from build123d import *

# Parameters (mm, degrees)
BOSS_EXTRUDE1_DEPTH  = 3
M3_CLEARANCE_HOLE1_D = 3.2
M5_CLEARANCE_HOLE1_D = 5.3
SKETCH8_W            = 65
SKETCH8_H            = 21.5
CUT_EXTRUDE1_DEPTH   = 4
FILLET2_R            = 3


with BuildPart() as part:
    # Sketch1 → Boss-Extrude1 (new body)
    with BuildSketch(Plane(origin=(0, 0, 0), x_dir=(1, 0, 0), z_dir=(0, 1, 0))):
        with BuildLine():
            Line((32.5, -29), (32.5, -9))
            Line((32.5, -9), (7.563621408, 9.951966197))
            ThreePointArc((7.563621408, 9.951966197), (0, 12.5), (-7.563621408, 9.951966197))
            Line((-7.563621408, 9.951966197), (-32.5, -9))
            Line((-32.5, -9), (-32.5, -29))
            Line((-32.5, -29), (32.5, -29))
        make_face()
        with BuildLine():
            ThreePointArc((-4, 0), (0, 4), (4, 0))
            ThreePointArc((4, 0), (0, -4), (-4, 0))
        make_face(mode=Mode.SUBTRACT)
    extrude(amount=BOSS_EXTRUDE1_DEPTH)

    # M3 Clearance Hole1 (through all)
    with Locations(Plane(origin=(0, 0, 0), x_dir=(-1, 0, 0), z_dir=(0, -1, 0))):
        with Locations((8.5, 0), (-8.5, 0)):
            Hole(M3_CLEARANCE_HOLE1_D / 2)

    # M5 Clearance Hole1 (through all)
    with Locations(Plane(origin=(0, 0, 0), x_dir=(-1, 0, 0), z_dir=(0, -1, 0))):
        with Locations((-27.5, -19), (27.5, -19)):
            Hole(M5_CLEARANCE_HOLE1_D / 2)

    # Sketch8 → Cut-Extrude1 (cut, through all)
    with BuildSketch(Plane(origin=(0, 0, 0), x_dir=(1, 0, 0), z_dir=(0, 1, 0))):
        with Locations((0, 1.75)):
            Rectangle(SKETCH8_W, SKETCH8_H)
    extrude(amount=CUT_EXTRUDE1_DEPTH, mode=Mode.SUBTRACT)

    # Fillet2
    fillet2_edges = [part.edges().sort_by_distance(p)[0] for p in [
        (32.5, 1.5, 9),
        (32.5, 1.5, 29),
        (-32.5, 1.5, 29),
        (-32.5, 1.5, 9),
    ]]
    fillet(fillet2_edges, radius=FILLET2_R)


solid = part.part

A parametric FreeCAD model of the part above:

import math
import FreeCAD as App
import Part
import Sketcher

V = App.Vector


def edges_at(feature, points):
    """Names of the edges that pass closest to the given points."""
    edges = feature.Shape.Edges
    near = lambda p: min(range(len(edges)), key=lambda i: edges[i].distToShape(Part.Vertex(*p))[0])
    return sorted({f"Edge{near(p) + 1}" for p in points})


def add_polygon(sketch, points):
    """Adds a closed chain of lines whose ends are joined by coincident constraints."""
    first, n = sketch.GeometryCount, len(points)
    for a, b in zip(points, points[1:] + points[:1]):
        sketch.addGeometry(Part.LineSegment(App.Vector(*a, 0), App.Vector(*b, 0)), False)
    for i in range(n):
        sketch.addConstraint(Sketcher.Constraint("Coincident", first + i, 2, first + (i + 1) % n, 1))

doc = App.newDocument("Part")
body = doc.addObject("PartDesign::Body", "Body")

# Sketch on XZ plane
sketch1 = body.newObject("Sketcher::SketchObject", "Sketch")
sketch1.AttachmentSupport = (doc.getObject("XZ_Plane"), [""])
sketch1.MapMode = "FlatFace"
sketch1.addGeometry([
    Part.LineSegment(V(32.5, 29, 0), V(32.5, 9, 0)),  # 0
    Part.LineSegment(V(32.5, 9, 0), V(7.6, -10, 0)),  # 1
    Part.ArcOfCircle(Part.Circle(V(0, 0, 0), V(0, 0, 1), 12.5), math.radians(-127), math.radians(-53)),  # 2
    Part.LineSegment(V(-7.6, -10, 0), V(-32.5, 9, 0)),  # 3
    Part.LineSegment(V(-32.5, 9, 0), V(-32.5, 29, 0)),  # 4
    Part.LineSegment(V(-32.5, 29, 0), V(32.5, 29, 0)),  # 5
    Part.Circle(V(0, 0, 0), V(0, 0, 1), 4),  # 6
], False)
sketch1.addConstraint([
    Sketcher.Constraint("Coincident", 0, 2, 1, 1),
    Sketcher.Constraint("Tangent", 1, 2, 2, 2),
    Sketcher.Constraint("Tangent", 2, 1, 3, 1),
    Sketcher.Constraint("Coincident", 3, 2, 4, 1),
    Sketcher.Constraint("Coincident", 4, 2, 5, 1),
    Sketcher.Constraint("Coincident", 5, 2, 0, 1),
    Sketcher.Constraint("Vertical", 0),
    Sketcher.Constraint("Vertical", 4),
    Sketcher.Constraint("Horizontal", 5),
    Sketcher.Constraint("Coincident", 2, 3, -1, 1),
    Sketcher.Constraint("Coincident", 6, 3, -1, 1),
    Sketcher.Constraint("Symmetric", 0, 2, 3, 2, -2),
    Sketcher.Constraint("Diameter", 6, 8.0),
    Sketcher.Constraint("Radius", 2, 12.5),
    Sketcher.Constraint("DistanceX", 5, 1, 5, 2, 65.0),
    Sketcher.Constraint("DistanceY", 0, 2, 0, 1, 20.0),
    Sketcher.Constraint("DistanceY", -1, 1, 0, 2, 9.0),
])
pad1 = body.newObject("PartDesign::Pad", "Pad")
pad1.Profile = sketch1
pad1.Length = 3
pad1.Reversed = True

# Sketch on XZ plane
sketch2 = body.newObject("Sketcher::SketchObject", "Sketch001")
sketch2.AttachmentSupport = (doc.getObject("XZ_Plane"), [""])
sketch2.MapMode = "FlatFace"
sketch2.addGeometry([
    Part.Circle(V(-8.5, 0, 0), V(0, 0, 1), 1.6),
    Part.Circle(V(8.5, 0, 0), V(0, 0, 1), 1.6),
], False)
sketch2.addConstraint([
    Sketcher.Constraint("Equal", 0, 1),
    Sketcher.Constraint("Symmetric", 0, 3, 1, 3, -1, 1),
    Sketcher.Constraint("PointOnObject", 0, 3, -1),
    Sketcher.Constraint("Diameter", 0, 3.2),
    Sketcher.Constraint("DistanceX", 0, 3, 1, 3, 17.0),
])
doc.recompute()
hole = body.newObject("PartDesign::Hole", "Hole")
hole.Profile = sketch2
hole.ThreadType = "None"
hole.Diameter = 3.2
hole.DepthType = "ThroughAll"

# Sketch on XZ plane
sketch3 = body.newObject("Sketcher::SketchObject", "Sketch002")
sketch3.AttachmentSupport = (doc.getObject("XZ_Plane"), [""])
sketch3.MapMode = "FlatFace"
sketch3.addGeometry([
    Part.Circle(V(27.5, 19, 0), V(0, 0, 1), 2.6),
    Part.Circle(V(-27.5, 19, 0), V(0, 0, 1), 2.6),
], False)
sketch3.addConstraint([
    Sketcher.Constraint("Equal", 0, 1),
    Sketcher.Constraint("Symmetric", 0, 3, 1, 3, -2),
    Sketcher.Constraint("Diameter", 0, 5.3),
    Sketcher.Constraint("DistanceY", -1, 1, 0, 3, 19.0),
    Sketcher.Constraint("DistanceX", 1, 3, 0, 3, 55.0),
])
doc.recompute()
hole2 = body.newObject("PartDesign::Hole", "Hole001")
hole2.Profile = sketch3
hole2.ThreadType = "None"
hole2.Diameter = 5.3
hole2.DepthType = "ThroughAll"

# Sketch on XZ plane
sketch4 = body.newObject("Sketcher::SketchObject", "Sketch003")
sketch4.AttachmentSupport = (doc.getObject("XZ_Plane"), [""])
sketch4.MapMode = "FlatFace"
add_polygon(sketch4, [(-32, -12), (-32, 9), (32, 9), (32, -12)])  # lines 0-3
sketch4.addConstraint([
    Sketcher.Constraint("Vertical", 0),
    Sketcher.Constraint("Horizontal", 1),
    Sketcher.Constraint("Vertical", 2),
    Sketcher.Constraint("Horizontal", 3),
    Sketcher.Constraint("DistanceX", 1, 1, 1, 2, 65.0),
    Sketcher.Constraint("DistanceY", 0, 1, 0, 2, 21.5),
    Sketcher.Constraint("DistanceY", -1, 1, 0, 2, 9.0),
    Sketcher.Constraint("DistanceX", 0, 2, -1, 1, 32.5),
])
pocket1 = body.newObject("PartDesign::Pocket", "Pocket")
pocket1.Profile = sketch4
pocket1.Type = "ThroughAll"
doc.recompute()

fillet = body.newObject("PartDesign::Fillet", "Fillet")
fillet.Base = (pocket1, edges_at(pocket1, [
    (32.5, 1.5, 9),
    (32.5, 1.5, 29),
    (-32.5, 1.5, 29),
    (-32.5, 1.5, 9),
]))
fillet.Radius = 3

doc.recompute()
